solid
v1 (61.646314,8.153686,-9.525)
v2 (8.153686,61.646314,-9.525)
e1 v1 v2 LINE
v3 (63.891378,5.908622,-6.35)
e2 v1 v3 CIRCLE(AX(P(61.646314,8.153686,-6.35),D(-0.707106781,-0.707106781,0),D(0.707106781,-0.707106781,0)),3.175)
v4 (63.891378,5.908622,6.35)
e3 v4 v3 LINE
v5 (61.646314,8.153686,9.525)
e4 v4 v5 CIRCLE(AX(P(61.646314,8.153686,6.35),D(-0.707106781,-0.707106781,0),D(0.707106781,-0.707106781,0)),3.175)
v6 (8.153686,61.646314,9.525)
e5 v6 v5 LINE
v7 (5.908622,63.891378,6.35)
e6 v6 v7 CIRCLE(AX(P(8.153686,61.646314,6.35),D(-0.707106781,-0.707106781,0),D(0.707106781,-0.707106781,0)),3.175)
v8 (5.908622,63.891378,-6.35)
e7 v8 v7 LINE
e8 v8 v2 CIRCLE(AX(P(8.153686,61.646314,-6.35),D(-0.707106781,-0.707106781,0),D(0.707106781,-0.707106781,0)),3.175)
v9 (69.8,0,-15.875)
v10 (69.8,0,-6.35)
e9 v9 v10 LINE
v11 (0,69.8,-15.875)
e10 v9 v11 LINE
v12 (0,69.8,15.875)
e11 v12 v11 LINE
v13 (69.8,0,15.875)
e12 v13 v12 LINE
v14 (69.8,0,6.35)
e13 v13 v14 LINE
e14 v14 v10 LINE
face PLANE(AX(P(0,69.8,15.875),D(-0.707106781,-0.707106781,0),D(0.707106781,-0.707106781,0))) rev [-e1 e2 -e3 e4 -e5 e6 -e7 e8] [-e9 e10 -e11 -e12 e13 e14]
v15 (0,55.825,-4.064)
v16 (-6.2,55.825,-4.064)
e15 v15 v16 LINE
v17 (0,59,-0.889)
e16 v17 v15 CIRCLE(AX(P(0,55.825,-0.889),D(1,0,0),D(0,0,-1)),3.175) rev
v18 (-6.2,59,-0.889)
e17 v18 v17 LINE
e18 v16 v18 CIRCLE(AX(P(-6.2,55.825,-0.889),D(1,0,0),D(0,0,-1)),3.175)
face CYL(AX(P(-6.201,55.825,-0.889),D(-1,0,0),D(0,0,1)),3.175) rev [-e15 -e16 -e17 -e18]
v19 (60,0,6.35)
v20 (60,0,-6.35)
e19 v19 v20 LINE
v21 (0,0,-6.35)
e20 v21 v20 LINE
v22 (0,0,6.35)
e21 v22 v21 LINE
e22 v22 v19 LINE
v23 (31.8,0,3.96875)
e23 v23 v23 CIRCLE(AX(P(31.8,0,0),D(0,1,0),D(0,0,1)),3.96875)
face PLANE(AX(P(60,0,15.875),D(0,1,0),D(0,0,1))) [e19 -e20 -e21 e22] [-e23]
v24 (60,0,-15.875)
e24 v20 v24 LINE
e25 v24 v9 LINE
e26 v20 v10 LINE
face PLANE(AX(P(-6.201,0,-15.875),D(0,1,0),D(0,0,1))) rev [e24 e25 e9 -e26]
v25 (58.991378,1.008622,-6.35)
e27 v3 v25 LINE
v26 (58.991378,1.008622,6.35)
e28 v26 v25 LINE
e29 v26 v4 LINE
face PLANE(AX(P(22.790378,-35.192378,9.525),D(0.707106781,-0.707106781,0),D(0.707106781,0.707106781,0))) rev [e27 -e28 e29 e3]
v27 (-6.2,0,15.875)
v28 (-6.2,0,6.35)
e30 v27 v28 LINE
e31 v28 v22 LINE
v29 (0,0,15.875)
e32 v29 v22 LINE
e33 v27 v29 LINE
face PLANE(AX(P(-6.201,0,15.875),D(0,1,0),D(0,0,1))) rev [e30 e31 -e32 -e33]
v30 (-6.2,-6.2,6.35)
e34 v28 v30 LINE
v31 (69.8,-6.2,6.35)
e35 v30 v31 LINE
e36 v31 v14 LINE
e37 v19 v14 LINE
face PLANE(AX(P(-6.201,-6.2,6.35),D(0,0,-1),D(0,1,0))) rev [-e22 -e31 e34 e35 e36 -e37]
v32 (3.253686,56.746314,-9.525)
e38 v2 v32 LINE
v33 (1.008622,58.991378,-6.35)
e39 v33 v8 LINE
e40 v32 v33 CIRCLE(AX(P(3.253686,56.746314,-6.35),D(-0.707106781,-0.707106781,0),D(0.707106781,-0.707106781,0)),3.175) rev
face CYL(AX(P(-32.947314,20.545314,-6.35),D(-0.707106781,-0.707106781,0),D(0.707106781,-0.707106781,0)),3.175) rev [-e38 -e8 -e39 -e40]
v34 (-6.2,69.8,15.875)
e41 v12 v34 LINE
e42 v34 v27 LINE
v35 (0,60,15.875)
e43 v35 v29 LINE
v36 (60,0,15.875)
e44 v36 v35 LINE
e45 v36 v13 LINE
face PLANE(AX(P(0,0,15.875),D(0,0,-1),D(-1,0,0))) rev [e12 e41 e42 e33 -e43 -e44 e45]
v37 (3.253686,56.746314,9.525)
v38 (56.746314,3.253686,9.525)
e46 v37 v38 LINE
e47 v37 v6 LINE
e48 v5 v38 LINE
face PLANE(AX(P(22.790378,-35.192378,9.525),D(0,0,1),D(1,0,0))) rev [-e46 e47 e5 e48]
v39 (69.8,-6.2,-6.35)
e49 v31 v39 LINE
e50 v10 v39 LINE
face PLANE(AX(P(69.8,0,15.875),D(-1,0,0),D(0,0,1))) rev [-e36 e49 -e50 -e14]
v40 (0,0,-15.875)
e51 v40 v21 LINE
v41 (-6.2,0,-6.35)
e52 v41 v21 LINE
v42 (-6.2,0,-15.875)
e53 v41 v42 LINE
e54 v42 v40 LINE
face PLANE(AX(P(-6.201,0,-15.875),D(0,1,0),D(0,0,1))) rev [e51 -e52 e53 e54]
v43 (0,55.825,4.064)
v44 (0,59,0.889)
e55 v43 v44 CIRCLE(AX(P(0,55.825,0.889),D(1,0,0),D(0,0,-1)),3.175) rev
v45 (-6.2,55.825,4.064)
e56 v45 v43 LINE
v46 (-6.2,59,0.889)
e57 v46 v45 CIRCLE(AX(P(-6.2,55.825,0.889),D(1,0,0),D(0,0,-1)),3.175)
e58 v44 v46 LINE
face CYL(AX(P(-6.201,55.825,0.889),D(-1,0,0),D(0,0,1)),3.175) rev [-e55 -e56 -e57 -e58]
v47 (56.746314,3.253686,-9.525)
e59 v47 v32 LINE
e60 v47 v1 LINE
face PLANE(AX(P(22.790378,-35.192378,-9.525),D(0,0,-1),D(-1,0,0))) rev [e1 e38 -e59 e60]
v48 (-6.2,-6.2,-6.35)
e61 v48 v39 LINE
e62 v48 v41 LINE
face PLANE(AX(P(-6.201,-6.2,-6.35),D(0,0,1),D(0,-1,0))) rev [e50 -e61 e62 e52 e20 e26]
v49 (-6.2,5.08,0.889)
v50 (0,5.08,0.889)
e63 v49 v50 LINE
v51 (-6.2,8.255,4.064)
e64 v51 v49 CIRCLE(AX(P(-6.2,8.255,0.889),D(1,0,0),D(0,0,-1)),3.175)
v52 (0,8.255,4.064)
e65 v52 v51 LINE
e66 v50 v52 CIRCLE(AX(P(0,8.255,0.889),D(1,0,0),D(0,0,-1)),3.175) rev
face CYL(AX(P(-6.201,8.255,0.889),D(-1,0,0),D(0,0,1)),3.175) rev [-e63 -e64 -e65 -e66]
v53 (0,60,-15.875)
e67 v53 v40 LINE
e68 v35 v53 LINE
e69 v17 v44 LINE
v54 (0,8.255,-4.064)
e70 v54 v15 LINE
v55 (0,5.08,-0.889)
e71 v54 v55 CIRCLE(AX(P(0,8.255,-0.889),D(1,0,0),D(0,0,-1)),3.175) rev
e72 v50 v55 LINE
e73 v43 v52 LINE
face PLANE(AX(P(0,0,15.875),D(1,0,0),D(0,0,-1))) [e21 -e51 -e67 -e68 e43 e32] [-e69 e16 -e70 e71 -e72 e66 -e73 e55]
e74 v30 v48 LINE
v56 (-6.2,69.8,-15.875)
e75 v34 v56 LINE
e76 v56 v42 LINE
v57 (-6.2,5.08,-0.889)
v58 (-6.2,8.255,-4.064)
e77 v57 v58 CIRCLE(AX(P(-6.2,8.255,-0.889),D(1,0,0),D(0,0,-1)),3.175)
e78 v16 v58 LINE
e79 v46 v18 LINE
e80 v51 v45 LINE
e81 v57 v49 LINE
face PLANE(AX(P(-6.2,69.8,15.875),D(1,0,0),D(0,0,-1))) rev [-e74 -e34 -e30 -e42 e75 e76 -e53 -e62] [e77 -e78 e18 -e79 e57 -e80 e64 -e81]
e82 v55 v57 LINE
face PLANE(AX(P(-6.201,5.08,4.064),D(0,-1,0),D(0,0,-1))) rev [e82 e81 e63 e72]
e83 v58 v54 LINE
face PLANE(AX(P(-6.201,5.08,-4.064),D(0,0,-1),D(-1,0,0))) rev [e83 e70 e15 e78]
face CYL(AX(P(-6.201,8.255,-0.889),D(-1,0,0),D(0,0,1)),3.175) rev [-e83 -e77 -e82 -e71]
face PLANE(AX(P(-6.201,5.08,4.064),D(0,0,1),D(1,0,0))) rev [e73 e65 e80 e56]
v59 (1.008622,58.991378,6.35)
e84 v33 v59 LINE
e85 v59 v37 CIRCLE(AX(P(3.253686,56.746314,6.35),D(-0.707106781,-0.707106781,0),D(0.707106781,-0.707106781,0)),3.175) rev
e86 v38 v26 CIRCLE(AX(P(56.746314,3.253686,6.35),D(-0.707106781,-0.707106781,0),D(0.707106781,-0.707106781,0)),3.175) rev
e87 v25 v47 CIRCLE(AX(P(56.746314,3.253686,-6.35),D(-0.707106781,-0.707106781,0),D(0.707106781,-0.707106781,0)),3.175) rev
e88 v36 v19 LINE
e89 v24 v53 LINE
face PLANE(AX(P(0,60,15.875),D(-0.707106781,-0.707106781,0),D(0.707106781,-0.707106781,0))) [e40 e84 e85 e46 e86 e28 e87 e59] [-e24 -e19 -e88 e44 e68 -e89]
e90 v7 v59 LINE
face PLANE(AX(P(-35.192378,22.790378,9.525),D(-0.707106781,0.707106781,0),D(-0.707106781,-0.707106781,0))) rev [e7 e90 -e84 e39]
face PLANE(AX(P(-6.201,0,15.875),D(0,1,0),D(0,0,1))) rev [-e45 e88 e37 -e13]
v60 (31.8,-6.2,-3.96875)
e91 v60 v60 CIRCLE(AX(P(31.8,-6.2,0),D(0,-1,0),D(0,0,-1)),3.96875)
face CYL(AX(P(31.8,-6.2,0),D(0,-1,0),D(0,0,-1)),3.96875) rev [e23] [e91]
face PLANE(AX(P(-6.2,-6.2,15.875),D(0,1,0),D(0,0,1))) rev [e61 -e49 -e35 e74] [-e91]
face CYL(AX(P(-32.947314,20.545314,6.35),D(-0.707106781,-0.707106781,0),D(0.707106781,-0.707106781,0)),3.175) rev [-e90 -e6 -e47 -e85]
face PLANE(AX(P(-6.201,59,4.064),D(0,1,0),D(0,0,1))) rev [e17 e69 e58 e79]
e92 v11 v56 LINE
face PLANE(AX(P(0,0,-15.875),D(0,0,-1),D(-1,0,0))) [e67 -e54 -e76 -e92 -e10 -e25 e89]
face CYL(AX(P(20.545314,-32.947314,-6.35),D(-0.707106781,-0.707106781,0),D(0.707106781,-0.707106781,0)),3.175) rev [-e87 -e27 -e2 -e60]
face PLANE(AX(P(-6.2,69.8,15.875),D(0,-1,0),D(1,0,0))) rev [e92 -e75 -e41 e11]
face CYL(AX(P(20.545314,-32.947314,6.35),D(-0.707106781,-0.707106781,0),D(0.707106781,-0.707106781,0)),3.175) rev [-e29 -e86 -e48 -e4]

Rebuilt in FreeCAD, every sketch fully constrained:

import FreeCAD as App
import Part
import Sketcher
Q = App.Units.Quantity


def edges_at(feature, points):
    """Names of the edges that pass closest to the given points."""
    edges = feature.Shape.Edges
    near = lambda p: min(range(len(edges)), key=lambda i: edges[i].distToShape(Part.Vertex(*p))[0])
    return sorted({f"Edge{near(p) + 1}" for p in points})

doc = App.newDocument("Part")
params = doc.addObject("Spreadsheet::Sheet", "Params")
for row, (alias, value) in enumerate([
    ("pad1_length", "1.25 in"),
    ("sketch2_width", "0.75 in"),
    ("sketch3_height", "0.32 in"),
    ("sketch4_height", "0.375 in"),
    ("sketch5_height", "0.375 in"),
    ("sketch6_diameter", "0.3125 in"),
    ("hole_diameter", "0.3125 in"),
    ("fillet_radius", "0.125 in"),
    ("fillet2_radius", "0.125 in"),
], start=1):
    params.set(f"A{row}", alias)
    params.set(f"B{row}", "=" + value)
    params.setAlias(f"B{row}", alias)

body = doc.addObject("PartDesign::Body", "Body")

# Sketch on XY plane
sketch1 = body.newObject("Sketcher::SketchObject", "Sketch")
sketch1.AttachmentSupport = (doc.getObject("XY_Plane"), [""])
sketch1.MapMode = "FlatFace"
sketch1.addGeometry([
    Part.LineSegment(App.Vector(-6, 70, 0), App.Vector(-6, -6, 0)),  # 0
    Part.LineSegment(App.Vector(-6, -6, 0), App.Vector(70, -6, 0)),  # 1
    Part.LineSegment(App.Vector(70, -6, 0), App.Vector(70, 0, 0)),  # 2
    Part.LineSegment(App.Vector(70, 0, 0), App.Vector(0, 70, 0)),  # 3
    Part.LineSegment(App.Vector(0, 70, 0), App.Vector(-6, 70, 0)),  # 4
    Part.LineSegment(App.Vector(0, 0, 0), App.Vector(0, 60, 0)),  # 5
    Part.LineSegment(App.Vector(0, 60, 0), App.Vector(60, 0, 0)),  # 6
    Part.LineSegment(App.Vector(60, 0, 0), App.Vector(0, 0, 0)),  # 7
], False)
sketch1.addConstraint([
    Sketcher.Constraint("Coincident", 0, 2, 1, 1),
    Sketcher.Constraint("Coincident", 1, 2, 2, 1),
    Sketcher.Constraint("Coincident", 2, 2, 3, 1),
    Sketcher.Constraint("Coincident", 3, 2, 4, 1),
    Sketcher.Constraint("Coincident", 4, 2, 0, 1),
    Sketcher.Constraint("Coincident", 5, 2, 6, 1),
    Sketcher.Constraint("Coincident", 6, 2, 7, 1),
    Sketcher.Constraint("Coincident", 7, 2, 5, 1),
    Sketcher.Constraint("Vertical", 0),
    Sketcher.Constraint("Horizontal", 1),
    Sketcher.Constraint("Vertical", 2),
    Sketcher.Constraint("Horizontal", 4),
    Sketcher.Constraint("Vertical", 5),
    Sketcher.Constraint("Horizontal", 7),
    Sketcher.Constraint("Coincident", 7, 2, -1, 1),
    Sketcher.Constraint("PointOnObject", 2, 2, -1),
    Sketcher.Constraint("PointOnObject", 3, 2, -2),
    Sketcher.Constraint("Parallel", 3, 6),
    Sketcher.Constraint("Equal", 1, 0),
    Sketcher.Constraint("Equal", 4, 2),
    Sketcher.Constraint("DistanceX", 1, 1, 1, 2, 76.0),
    Sketcher.Constraint("DistanceX", 4, 2, 4, 1, 6.2),
    Sketcher.Constraint("DistanceX", 7, 2, 7, 1, 60.0),
])
pad1 = body.newObject("PartDesign::Pad", "Pad")
pad1.Profile = sketch1
pad1.setExpression("Length", "Params.pad1_length")
pad1.Midplane = True

# Sketch on an angled plane
sketch2 = body.newObject("Sketcher::SketchObject", "Sketch001")
sketch2.Placement = App.Placement(App.Vector(34.9, 34.9, 0), App.Rotation(App.Vector(0, 0, -1), App.Vector(-0.707106781, 0.707106781, 0), App.Vector(0.707106781, 0.707106781, 0), "ZXY"))
sketch2.addGeometry([
    Part.LineSegment(App.Vector(-10, 41, 0), App.Vector(-10, -41, 0)),
    Part.LineSegment(App.Vector(-10, -41, 0), App.Vector(10, -41, 0)),
    Part.LineSegment(App.Vector(10, -41, 0), App.Vector(10, 41, 0)),
    Part.LineSegment(App.Vector(10, 41, 0), App.Vector(-10, 41, 0)),
], False)
sketch2.addConstraint([
    Sketcher.Constraint("Coincident", 0, 2, 1, 1),
    Sketcher.Constraint("Coincident", 1, 2, 2, 1),
    Sketcher.Constraint("Coincident", 2, 2, 3, 1),
    Sketcher.Constraint("Coincident", 3, 2, 0, 1),
    Sketcher.Constraint("Vertical", 0),
    Sketcher.Constraint("Horizontal", 1),
    Sketcher.Constraint("Vertical", 2),
    Sketcher.Constraint("Horizontal", 3),
    Sketcher.Constraint("Symmetric", 0, 2, 2, 2, -1, 1),
    Sketcher.Constraint("DistanceX", 1, 1, 1, 2, Q("0.75 in")),
    Sketcher.Constraint("DistanceY", 0, 2, 0, 1, 82.0),
])
sketch2.setExpression("Constraints[9]", "Params.sketch2_width")
pocket1 = body.newObject("PartDesign::Pocket", "Pocket")
pocket1.Profile = sketch2
pocket1.Type = "UpToFirst"

# Sketch on YZ plane
sketch3 = body.newObject("Sketcher::SketchObject", "Sketch002")
sketch3.AttachmentSupport = (doc.getObject("YZ_Plane"), [""])
sketch3.MapMode = "FlatFace"
sketch3.addGeometry([
    Part.LineSegment(App.Vector(59, 4, 0), App.Vector(5, 4, 0)),
    Part.LineSegment(App.Vector(5, 4, 0), App.Vector(5, -4, 0)),
    Part.LineSegment(App.Vector(5, -4, 0), App.Vector(59, -4, 0)),
    Part.LineSegment(App.Vector(59, -4, 0), App.Vector(59, 4, 0)),
], False)
sketch3.addConstraint([
    Sketcher.Constraint("Coincident", 0, 2, 1, 1),
    Sketcher.Constraint("Coincident", 1, 2, 2, 1),
    Sketcher.Constraint("Coincident", 2, 2, 3, 1),
    Sketcher.Constraint("Coincident", 3, 2, 0, 1),
    Sketcher.Constraint("Horizontal", 0),
    Sketcher.Constraint("Vertical", 1),
    Sketcher.Constraint("Horizontal", 2),
    Sketcher.Constraint("Vertical", 3),
    Sketcher.Constraint("DistanceY", 1, 2, 1, 1, Q("0.32 in")),
    Sketcher.Constraint("DistanceX", -1, 1, 0, 2, Q("0.2 in")),
    Sketcher.Constraint("DistanceY", -1, 1, 0, 2, Q("0.16 in")),
    Sketcher.Constraint("DistanceX", 0, 2, 0, 1, 53.92),
])
sketch3.setExpression("Constraints[8]", "Params.sketch3_height")
pocket2 = body.newObject("PartDesign::Pocket", "Pocket001")
pocket2.Profile = sketch3
pocket2.Type = "UpToFirst"

# Sketch on YZ plane
sketch4 = body.newObject("Sketcher::SketchObject", "Sketch003")
sketch4.AttachmentSupport = (doc.getObject("YZ_Plane"), [""])
sketch4.MapMode = "FlatFace"
sketch4.AttachmentOffset = App.Placement(App.Vector(0, 0, 69.8), App.Rotation())
sketch4.addGeometry([
    Part.LineSegment(App.Vector(0, 16, 0), App.Vector(-6, 16, 0)),
    Part.LineSegment(App.Vector(-6, 16, 0), App.Vector(-6, 6, 0)),
    Part.LineSegment(App.Vector(-6, 6, 0), App.Vector(0, 6, 0)),
    Part.LineSegment(App.Vector(0, 6, 0), App.Vector(0, 16, 0)),
], False)
sketch4.addConstraint([
    Sketcher.Constraint("Coincident", 0, 2, 1, 1),
    Sketcher.Constraint("Coincident", 1, 2, 2, 1),
    Sketcher.Constraint("Coincident", 2, 2, 3, 1),
    Sketcher.Constraint("Coincident", 3, 2, 0, 1),
    Sketcher.Constraint("Horizontal", 0),
    Sketcher.Constraint("Vertical", 1),
    Sketcher.Constraint("Horizontal", 2),
    Sketcher.Constraint("Vertical", 3),
    Sketcher.Constraint("PointOnObject", 2, 2, -2),
    Sketcher.Constraint("DistanceY", 1, 2, 1, 1, Q("0.375 in")),
    Sketcher.Constraint("DistanceY", -1, 1, 1, 2, Q("0.25 in")),
    Sketcher.Constraint("DistanceX", 0, 2, 0, 1, 6.2),
])
sketch4.setExpression("Constraints[9]", "Params.sketch4_height")
pocket3 = body.newObject("PartDesign::Pocket", "Pocket002")
pocket3.Profile = sketch4
pocket3.Type = "UpToFirst"

# Sketch on YZ plane
sketch5 = body.newObject("Sketcher::SketchObject", "Sketch004")
sketch5.AttachmentSupport = (doc.getObject("YZ_Plane"), [""])
sketch5.MapMode = "FlatFace"
sketch5.AttachmentOffset = App.Placement(App.Vector(0, 0, 69.8), App.Rotation())
sketch5.addGeometry([
    Part.LineSegment(App.Vector(0, -6, 0), App.Vector(-6, -6, 0)),
    Part.LineSegment(App.Vector(-6, -6, 0), App.Vector(-6, -16, 0)),
    Part.LineSegment(App.Vector(-6, -16, 0), App.Vector(0, -16, 0)),
    Part.LineSegment(App.Vector(0, -16, 0), App.Vector(0, -6, 0)),
], False)
sketch5.addConstraint([
    Sketcher.Constraint("Coincident", 0, 2, 1, 1),
    Sketcher.Constraint("Coincident", 1, 2, 2, 1),
    Sketcher.Constraint("Coincident", 2, 2, 3, 1),
    Sketcher.Constraint("Coincident", 3, 2, 0, 1),
    Sketcher.Constraint("Horizontal", 0),
    Sketcher.Constraint("Vertical", 1),
    Sketcher.Constraint("Horizontal", 2),
    Sketcher.Constraint("Vertical", 3),
    Sketcher.Constraint("PointOnObject", 2, 2, -2),
    Sketcher.Constraint("DistanceY", 1, 2, 1, 1, Q("0.375 in")),
    Sketcher.Constraint("DistanceY", 0, 2, -1, 1, Q("0.25 in")),
    Sketcher.Constraint("DistanceX", 0, 2, 0, 1, 6.2),
])
sketch5.setExpression("Constraints[9]", "Params.sketch5_height")
pocket4 = body.newObject("PartDesign::Pocket", "Pocket003")
pocket4.Profile = sketch5
pocket4.Type = "UpToFirst"

# Sketch on XZ plane
sketch6 = body.newObject("Sketcher::SketchObject", "Sketch005")
sketch6.AttachmentSupport = (doc.getObject("XZ_Plane"), [""])
sketch6.MapMode = "FlatFace"
sketch6.AttachmentOffset = App.Placement(App.Vector(0, 0, 6.2), App.Rotation())
sketch6.addGeometry(Part.Circle(App.Vector(31.8, 0, 0), App.Vector(0, 0, 1), 4), False)
sketch6.addConstraint([
    Sketcher.Constraint("PointOnObject", 0, 3, -1),
    Sketcher.Constraint("Diameter", 0, Q("0.3125 in")),
    Sketcher.Constraint("DistanceX", -1, 1, 0, 3, 31.8),
])
sketch6.setExpression("Constraints[1]", "Params.sketch6_diameter")
doc.recompute()
hole = body.newObject("PartDesign::Hole", "Hole")
hole.Profile = sketch6
hole.ThreadType = "None"
hole.setExpression("Diameter", "Params.hole_diameter")
hole.DepthType = "ThroughAll"
doc.recompute()

fillet = body.newObject("PartDesign::Fillet", "Fillet")
fillet.Base = (hole, edges_at(hole, [
    (3.459, 61.441, 9.525),
    (61.441, 3.459, 9.525),
    (61.441, 3.459, -9.525),
    (3.459, 61.441, -9.525),
]))
fillet.setExpression("Radius", "Params.fillet_radius")
doc.recompute()

fillet2 = body.newObject("PartDesign::Fillet", "Fillet001")
fillet2.Base = (fillet, edges_at(fillet, [
    (-3.1, 59, -4.064),
    (-3.1, 5.08, -4.064),
    (-3.1, 5.08, 4.064),
    (-3.1, 59, 4.064),
]))
fillet2.setExpression("Radius", "Params.fillet2_radius")

doc.recompute()
